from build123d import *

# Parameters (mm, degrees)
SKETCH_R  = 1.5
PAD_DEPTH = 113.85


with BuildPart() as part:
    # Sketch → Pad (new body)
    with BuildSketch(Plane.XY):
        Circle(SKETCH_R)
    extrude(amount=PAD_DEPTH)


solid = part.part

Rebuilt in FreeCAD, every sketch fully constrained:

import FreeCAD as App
import Part
import Sketcher

V = App.Vector
Q = App.Units.Quantity

doc = App.newDocument("Part")
body = doc.addObject("PartDesign::Body", "Body")

# Sketch on XY plane
sketch1 = body.newObject("Sketcher::SketchObject", "Sketch")
sketch1.AttachmentSupport = (doc.getObject("XY_Plane"), [""])
sketch1.MapMode = "FlatFace"
sketch1.addGeometry(Part.Circle(V(0, 0, 0), V(0, 0, 1), 1.5), False)
sketch1.addConstraint([
    Sketcher.Constraint("Coincident", 0, 3, -1, 1),
    Sketcher.Constraint("Diameter", 0, Q("3 mm")),
])
pad1 = body.newObject("PartDesign::Pad", "Pad")
pad1.Profile = sketch1
pad1.Length = 113.85

doc.recompute()
